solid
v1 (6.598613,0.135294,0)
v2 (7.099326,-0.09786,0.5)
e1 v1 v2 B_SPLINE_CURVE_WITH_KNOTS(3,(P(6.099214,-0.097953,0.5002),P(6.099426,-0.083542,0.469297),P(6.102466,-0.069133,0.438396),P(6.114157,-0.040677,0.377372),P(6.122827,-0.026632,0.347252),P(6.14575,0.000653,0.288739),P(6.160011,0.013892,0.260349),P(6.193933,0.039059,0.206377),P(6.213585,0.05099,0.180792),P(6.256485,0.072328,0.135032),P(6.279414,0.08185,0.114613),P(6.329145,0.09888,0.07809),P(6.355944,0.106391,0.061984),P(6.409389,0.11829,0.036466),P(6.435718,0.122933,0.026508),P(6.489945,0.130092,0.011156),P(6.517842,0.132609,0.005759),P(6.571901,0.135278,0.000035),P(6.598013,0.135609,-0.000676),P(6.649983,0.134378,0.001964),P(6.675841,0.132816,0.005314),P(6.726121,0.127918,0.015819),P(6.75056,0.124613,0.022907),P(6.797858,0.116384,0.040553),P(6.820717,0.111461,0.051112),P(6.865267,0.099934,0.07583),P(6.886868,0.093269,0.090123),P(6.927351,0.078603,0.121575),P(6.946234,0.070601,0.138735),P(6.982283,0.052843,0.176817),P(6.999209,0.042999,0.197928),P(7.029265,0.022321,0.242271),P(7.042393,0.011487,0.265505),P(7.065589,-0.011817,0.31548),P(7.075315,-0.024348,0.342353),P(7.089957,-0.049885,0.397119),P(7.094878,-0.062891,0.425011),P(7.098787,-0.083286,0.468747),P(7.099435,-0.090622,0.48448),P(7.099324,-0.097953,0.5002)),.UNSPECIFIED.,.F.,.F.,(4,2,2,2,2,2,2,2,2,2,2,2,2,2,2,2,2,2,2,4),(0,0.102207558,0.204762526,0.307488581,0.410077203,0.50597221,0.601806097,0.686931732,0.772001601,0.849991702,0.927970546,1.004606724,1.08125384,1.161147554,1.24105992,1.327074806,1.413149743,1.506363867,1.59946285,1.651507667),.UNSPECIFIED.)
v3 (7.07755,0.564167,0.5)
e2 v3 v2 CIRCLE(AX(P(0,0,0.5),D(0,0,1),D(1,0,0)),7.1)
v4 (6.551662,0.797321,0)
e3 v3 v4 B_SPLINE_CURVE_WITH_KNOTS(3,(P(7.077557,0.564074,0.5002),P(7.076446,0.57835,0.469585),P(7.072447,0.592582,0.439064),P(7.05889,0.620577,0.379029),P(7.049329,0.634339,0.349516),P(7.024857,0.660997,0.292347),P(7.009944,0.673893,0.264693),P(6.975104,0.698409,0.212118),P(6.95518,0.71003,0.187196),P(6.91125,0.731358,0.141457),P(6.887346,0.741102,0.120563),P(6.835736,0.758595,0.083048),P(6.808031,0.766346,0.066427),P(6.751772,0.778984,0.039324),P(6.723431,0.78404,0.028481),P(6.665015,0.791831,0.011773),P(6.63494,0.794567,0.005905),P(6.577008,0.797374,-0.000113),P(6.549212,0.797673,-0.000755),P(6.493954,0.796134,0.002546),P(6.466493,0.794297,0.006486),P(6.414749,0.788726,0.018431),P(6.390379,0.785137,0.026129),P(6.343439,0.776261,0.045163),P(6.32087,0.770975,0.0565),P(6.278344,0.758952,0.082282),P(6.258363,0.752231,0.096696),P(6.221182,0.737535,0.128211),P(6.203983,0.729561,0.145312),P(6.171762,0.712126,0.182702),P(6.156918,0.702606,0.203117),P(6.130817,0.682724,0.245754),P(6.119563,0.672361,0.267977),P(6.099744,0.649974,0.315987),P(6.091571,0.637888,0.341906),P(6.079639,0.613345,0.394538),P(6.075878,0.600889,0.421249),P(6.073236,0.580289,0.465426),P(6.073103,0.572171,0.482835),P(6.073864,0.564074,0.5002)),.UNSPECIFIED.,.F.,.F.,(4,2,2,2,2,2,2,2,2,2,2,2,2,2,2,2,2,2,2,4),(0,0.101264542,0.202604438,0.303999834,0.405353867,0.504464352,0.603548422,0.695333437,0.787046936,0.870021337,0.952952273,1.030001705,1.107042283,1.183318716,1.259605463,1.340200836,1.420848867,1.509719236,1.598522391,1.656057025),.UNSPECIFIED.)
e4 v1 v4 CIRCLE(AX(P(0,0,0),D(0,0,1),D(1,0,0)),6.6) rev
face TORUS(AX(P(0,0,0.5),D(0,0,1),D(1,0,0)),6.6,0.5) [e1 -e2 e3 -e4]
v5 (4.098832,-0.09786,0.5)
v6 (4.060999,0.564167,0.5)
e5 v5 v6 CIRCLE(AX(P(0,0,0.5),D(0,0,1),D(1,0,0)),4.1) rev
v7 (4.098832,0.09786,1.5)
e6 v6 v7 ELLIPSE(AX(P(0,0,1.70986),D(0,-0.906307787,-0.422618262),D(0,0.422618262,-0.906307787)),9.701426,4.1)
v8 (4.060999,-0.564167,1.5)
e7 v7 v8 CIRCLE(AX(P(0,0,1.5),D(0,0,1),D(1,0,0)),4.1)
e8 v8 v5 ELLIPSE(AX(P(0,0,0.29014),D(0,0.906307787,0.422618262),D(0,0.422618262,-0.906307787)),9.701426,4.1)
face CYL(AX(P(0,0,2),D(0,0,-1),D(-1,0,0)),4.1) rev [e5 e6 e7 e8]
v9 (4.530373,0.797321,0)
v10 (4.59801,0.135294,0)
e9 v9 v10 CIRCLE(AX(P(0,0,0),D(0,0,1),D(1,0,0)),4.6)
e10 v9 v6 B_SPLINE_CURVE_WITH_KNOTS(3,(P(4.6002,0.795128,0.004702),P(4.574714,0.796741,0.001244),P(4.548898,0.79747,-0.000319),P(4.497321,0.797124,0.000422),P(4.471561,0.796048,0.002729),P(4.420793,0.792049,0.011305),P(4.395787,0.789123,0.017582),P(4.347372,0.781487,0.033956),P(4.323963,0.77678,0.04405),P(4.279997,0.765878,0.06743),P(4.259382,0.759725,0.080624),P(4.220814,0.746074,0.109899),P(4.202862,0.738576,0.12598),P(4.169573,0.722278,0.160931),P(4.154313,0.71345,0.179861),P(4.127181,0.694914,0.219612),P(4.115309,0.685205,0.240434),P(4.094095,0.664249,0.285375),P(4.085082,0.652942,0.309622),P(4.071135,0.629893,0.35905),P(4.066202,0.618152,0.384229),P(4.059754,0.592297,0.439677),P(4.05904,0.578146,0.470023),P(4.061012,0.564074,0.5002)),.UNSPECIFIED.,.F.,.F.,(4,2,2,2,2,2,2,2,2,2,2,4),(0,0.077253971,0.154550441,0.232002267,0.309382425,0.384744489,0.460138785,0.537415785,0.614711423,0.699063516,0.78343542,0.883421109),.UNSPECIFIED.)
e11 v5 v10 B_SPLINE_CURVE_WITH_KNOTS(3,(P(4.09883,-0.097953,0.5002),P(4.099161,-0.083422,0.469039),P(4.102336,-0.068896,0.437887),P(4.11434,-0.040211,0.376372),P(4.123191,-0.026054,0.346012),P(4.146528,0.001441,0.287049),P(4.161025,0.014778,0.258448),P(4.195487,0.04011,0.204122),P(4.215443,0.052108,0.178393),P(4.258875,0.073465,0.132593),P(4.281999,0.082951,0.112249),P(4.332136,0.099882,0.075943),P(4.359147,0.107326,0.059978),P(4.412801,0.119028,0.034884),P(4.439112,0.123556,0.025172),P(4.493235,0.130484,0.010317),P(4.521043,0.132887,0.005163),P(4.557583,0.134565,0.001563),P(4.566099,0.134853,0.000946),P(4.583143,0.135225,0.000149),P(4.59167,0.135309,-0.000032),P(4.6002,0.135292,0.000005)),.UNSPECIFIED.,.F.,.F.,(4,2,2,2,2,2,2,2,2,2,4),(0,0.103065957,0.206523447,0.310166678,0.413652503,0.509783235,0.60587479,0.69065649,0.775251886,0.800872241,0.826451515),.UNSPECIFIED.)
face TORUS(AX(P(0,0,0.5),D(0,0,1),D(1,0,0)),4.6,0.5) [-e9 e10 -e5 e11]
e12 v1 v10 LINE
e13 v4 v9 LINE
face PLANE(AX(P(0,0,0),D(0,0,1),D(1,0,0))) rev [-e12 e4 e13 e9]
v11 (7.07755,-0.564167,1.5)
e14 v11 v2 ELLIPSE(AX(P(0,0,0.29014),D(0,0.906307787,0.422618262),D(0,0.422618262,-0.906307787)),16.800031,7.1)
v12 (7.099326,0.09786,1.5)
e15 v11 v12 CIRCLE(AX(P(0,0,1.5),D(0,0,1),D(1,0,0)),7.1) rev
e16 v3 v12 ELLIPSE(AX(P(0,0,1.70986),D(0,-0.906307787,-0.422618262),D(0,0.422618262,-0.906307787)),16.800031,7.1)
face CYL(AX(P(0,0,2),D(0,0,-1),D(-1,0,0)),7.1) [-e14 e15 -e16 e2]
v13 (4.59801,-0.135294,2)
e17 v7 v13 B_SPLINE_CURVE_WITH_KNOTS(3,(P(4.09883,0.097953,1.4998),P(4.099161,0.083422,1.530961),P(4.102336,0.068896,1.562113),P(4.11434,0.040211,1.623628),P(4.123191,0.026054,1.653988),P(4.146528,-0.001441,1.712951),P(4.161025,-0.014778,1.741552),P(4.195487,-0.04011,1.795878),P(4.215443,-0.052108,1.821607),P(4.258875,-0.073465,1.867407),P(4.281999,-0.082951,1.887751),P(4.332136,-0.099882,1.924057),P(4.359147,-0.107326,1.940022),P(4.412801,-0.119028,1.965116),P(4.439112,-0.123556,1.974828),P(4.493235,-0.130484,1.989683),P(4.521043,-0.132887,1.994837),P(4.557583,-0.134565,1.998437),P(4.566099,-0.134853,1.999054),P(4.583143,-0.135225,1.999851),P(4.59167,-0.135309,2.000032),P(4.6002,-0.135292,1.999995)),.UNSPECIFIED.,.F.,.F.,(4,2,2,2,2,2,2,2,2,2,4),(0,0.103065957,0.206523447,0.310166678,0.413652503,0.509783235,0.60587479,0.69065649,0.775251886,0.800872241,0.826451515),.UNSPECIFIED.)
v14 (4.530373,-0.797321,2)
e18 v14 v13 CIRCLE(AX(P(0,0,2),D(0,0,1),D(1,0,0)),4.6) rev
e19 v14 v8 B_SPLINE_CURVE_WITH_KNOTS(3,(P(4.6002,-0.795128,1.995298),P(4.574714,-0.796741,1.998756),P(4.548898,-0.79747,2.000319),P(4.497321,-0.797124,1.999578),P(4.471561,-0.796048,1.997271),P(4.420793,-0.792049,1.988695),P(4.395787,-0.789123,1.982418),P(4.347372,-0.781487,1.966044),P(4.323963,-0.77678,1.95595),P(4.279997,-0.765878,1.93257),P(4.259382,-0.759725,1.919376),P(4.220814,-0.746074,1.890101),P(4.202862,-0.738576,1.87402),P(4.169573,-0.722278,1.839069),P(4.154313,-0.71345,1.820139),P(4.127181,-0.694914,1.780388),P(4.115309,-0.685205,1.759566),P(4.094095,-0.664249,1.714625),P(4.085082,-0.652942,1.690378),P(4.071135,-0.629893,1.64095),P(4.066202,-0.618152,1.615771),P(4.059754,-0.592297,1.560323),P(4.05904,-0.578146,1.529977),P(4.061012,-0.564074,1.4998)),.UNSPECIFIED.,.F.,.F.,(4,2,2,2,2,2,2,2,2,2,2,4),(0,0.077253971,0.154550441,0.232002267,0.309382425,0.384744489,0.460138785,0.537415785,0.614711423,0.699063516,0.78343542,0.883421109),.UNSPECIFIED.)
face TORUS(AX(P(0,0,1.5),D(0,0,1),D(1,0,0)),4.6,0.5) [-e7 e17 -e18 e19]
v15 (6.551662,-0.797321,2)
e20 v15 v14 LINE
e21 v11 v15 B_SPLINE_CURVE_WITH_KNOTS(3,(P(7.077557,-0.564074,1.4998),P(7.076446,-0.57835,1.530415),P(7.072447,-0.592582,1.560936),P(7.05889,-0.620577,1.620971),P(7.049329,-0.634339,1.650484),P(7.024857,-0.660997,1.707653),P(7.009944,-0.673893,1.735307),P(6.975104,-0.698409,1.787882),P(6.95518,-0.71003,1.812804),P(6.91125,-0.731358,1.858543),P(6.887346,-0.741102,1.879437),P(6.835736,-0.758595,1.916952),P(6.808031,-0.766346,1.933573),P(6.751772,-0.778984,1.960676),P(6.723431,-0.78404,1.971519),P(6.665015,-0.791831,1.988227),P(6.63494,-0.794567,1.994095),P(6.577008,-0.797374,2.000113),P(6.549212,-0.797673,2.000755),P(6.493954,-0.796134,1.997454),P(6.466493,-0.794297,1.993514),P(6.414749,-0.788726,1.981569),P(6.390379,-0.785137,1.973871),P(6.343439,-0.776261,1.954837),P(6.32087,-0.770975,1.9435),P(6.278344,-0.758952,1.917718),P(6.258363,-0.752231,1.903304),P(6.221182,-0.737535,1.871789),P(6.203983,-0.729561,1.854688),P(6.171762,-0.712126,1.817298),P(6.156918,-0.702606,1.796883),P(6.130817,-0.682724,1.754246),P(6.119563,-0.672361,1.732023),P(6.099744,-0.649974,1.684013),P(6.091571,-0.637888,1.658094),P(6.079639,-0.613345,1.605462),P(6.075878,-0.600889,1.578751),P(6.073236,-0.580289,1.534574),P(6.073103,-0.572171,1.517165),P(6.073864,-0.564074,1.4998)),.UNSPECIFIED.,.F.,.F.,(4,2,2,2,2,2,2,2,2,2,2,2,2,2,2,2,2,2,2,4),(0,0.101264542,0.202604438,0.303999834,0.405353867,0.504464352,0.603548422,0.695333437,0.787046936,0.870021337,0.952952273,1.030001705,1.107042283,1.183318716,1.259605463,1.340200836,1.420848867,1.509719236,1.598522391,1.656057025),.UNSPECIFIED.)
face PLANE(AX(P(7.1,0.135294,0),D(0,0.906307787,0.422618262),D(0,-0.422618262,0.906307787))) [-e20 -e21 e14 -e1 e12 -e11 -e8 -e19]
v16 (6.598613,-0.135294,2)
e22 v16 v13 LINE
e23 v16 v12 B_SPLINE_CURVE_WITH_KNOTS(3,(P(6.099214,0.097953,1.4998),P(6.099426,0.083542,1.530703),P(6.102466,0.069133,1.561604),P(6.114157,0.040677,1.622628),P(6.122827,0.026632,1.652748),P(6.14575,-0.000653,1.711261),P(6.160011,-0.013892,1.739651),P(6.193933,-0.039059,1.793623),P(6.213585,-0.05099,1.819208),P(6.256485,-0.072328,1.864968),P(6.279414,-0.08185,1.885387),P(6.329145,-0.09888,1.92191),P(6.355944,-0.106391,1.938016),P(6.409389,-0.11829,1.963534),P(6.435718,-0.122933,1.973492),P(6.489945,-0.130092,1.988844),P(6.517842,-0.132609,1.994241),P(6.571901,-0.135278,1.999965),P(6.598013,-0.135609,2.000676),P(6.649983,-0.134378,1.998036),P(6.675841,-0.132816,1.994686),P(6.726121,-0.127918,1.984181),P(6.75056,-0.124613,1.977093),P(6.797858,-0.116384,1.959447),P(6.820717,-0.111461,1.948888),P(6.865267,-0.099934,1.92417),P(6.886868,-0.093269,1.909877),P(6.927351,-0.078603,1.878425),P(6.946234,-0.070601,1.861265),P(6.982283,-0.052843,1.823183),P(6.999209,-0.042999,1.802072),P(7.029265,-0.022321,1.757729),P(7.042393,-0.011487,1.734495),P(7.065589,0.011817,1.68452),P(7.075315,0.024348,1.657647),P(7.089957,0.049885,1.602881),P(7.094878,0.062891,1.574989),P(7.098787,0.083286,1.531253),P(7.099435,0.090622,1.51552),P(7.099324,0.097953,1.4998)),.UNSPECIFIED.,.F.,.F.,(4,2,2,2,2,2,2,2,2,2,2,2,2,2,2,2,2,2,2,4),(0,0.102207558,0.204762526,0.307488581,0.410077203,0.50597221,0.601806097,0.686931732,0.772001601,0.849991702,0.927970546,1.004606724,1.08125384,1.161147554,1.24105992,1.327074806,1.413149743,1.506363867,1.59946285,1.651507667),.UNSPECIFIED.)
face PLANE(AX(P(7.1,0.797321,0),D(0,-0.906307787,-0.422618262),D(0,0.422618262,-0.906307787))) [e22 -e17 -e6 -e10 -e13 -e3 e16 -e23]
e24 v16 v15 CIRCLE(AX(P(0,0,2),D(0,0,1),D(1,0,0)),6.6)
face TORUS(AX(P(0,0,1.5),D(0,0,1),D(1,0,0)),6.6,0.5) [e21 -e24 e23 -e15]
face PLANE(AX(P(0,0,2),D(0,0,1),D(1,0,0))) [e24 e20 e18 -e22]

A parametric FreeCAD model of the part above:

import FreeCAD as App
import Part
import Sketcher
Q = App.Units.Quantity


def edges_at(feature, points):
    """Names of the edges that pass closest to the given points."""
    edges = feature.Shape.Edges
    near = lambda p: min(range(len(edges)), key=lambda i: edges[i].distToShape(Part.Vertex(*p))[0])
    return sorted({f"Edge{near(p) + 1}" for p in points})


def add_polygon(sketch, points):
    """Adds a closed chain of lines whose ends are joined by coincident constraints."""
    first, n = sketch.GeometryCount, len(points)
    for a, b in zip(points, points[1:] + points[:1]):
        sketch.addGeometry(Part.LineSegment(App.Vector(*a, 0), App.Vector(*b, 0)), False)
    for i in range(n):
        sketch.addConstraint(Sketcher.Constraint("Coincident", first + i, 2, first + (i + 1) % n, 1))

doc = App.newDocument("Part")
body = doc.addObject("PartDesign::Body", "Body")

# Sketch on XY plane
sketch1 = body.newObject("Sketcher::SketchObject", "Sketch")
sketch1.AttachmentSupport = (doc.getObject("XY_Plane"), [""])
sketch1.MapMode = "FlatFace"
sketch1.addGeometry([
    Part.Circle(App.Vector(0, 0, 0), App.Vector(0, 0, 1), 7.1),
    Part.Circle(App.Vector(0, 0, 0), App.Vector(0, 0, 1), 4.1),
], False)
sketch1.addConstraint([
    Sketcher.Constraint("Coincident", 0, 3, -1, 1),
    Sketcher.Constraint("Coincident", 1, 3, -1, 1),
    Sketcher.Constraint("Diameter", 0, 14.2),
    Sketcher.Constraint("Diameter", 1, 8.2),
])
pad1 = body.newObject("PartDesign::Pad", "Pad")
pad1.Profile = sketch1
pad1.Length = 2
doc.recompute()

fillet = body.newObject("PartDesign::Fillet", "Fillet")
fillet.Base = (pad1, edges_at(pad1, [
    (-7.1, 0, 0),
    (-7.1, 0, 2),
    (-4.1, 0, 0),
    (-4.1, 0, 2),
]))
fillet.Radius = 0.5

# Sketch on YZ plane
sketch2 = body.newObject("Sketcher::SketchObject", "Sketch001")
sketch2.AttachmentSupport = (doc.getObject("YZ_Plane"), [""])
sketch2.MapMode = "FlatFace"
add_polygon(sketch2, [(-0.8, 2), (0.1, 0), (0.8, 0), (-0.1, 2)])  # lines 0-3
sketch2.addConstraint([
    Sketcher.Constraint("Horizontal", 1),
    Sketcher.Constraint("Horizontal", 3),
    Sketcher.Constraint("PointOnObject", 0, 2, -1),
    Sketcher.Constraint("Parallel", 0, 2),
    Sketcher.Constraint("Angle", 0, Q("-65 deg")),
    Sketcher.Constraint("DistanceY", -1, 1, 2, 2, 2.0),
    Sketcher.Constraint("DistanceX", 1, 1, 1, 2, 0.662027),
    Sketcher.Constraint("DistanceX", -1, 1, 1, 2, 0.797321),
])
pocket1 = body.newObject("PartDesign::Pocket", "Pocket")
pocket1.Profile = sketch2
pocket1.Type = "ThroughAll"
pocket1.Reversed = True

doc.recompute()
